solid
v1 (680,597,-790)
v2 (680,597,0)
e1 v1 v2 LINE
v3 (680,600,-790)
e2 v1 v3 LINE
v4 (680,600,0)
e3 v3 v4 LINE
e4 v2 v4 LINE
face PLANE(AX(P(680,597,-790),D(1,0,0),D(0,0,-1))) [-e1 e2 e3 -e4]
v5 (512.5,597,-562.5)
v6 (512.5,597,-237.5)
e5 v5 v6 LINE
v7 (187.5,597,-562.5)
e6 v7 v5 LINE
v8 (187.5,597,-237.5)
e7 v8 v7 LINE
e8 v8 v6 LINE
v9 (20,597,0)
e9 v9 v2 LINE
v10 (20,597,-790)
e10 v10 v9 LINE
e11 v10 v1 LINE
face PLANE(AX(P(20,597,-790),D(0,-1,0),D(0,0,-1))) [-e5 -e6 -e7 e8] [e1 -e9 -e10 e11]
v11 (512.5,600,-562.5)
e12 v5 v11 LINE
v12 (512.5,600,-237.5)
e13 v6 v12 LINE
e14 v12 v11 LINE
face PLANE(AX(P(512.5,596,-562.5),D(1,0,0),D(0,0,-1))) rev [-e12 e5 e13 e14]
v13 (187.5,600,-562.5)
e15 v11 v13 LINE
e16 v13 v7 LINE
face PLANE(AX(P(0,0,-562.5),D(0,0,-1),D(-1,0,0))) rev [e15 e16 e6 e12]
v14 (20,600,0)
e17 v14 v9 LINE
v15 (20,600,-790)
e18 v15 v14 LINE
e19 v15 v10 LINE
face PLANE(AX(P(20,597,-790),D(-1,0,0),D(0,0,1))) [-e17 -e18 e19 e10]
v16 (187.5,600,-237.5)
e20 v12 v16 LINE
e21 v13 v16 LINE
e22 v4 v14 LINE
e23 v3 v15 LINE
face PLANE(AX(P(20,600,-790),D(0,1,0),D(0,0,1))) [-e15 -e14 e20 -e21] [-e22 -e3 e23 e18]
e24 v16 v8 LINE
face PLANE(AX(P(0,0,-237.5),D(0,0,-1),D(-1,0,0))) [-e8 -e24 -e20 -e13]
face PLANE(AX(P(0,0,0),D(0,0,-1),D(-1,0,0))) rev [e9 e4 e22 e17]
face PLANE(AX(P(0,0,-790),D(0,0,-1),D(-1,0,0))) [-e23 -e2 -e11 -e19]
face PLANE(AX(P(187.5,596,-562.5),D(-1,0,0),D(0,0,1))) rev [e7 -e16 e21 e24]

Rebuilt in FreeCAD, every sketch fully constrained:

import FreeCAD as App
import Part
import Sketcher

V = App.Vector
Q = App.Units.Quantity


def add_polygon(sketch, points):
    """Adds a closed chain of lines whose ends are joined by coincident constraints."""
    first, n = sketch.GeometryCount, len(points)
    for a, b in zip(points, points[1:] + points[:1]):
        sketch.addGeometry(Part.LineSegment(App.Vector(*a, 0), App.Vector(*b, 0)), False)
    for i in range(n):
        sketch.addConstraint(Sketcher.Constraint("Coincident", first + i, 2, first + (i + 1) % n, 1))

doc = App.newDocument("Part")
body = doc.addObject("PartDesign::Body", "Body")

# Sketch on XY plane
sketch1 = body.newObject("Sketcher::SketchObject", "Sketch")
sketch1.AttachmentSupport = (doc.getObject("XY_Plane"), [""])
sketch1.MapMode = "FlatFace"
add_polygon(sketch1, [(20, 600), (20, 597), (680, 597), (680, 600)])  # lines 0-3
sketch1.addConstraint([
    Sketcher.Constraint("Vertical", 0),
    Sketcher.Constraint("Horizontal", 1),
    Sketcher.Constraint("Vertical", 2),
    Sketcher.Constraint("Horizontal", 3),
    Sketcher.Constraint("DistanceX", 1, 1, 1, 2, Q("660 mm")),
    Sketcher.Constraint("DistanceY", 0, 2, 0, 1, Q("3 mm")),
    Sketcher.Constraint("DistanceX", -1, 1, 0, 2, Q("20 mm")),
    Sketcher.Constraint("DistanceY", -1, 1, 0, 2, Q("597 mm")),
])
pad1 = body.newObject("PartDesign::Pad", "Pad")
pad1.Profile = sketch1
pad1.Length = 790
pad1.Reversed = True

# Sketch on XY plane
sketch2 = body.newObject("Sketcher::SketchObject", "Sketch001")
sketch2.AttachmentSupport = (doc.getObject("XY_Plane"), [""])
sketch2.MapMode = "FlatFace"
sketch2.AttachmentOffset = App.Placement(V(0, 0, -237.5), App.Rotation())
add_polygon(sketch2, [(187.5, 601), (187.5, 596), (512.5, 596), (512.5, 601)])  # lines 0-3
sketch2.addConstraint([
    Sketcher.Constraint("Vertical", 0),
    Sketcher.Constraint("Horizontal", 1),
    Sketcher.Constraint("Vertical", 2),
    Sketcher.Constraint("Horizontal", 3),
    Sketcher.Constraint("DistanceX", 1, 1, 1, 2, Q("325 mm")),
    Sketcher.Constraint("DistanceY", 0, 2, 0, 1, Q("5 mm")),
    Sketcher.Constraint("DistanceY", -1, 1, 0, 2, Q("596 mm")),
    Sketcher.Constraint("DistanceX", -1, 1, 0, 2, Q("187.5 mm")),
])
pocket1 = body.newObject("PartDesign::Pocket", "Pocket")
pocket1.Profile = sketch2
pocket1.Length = 325

doc.recompute()
